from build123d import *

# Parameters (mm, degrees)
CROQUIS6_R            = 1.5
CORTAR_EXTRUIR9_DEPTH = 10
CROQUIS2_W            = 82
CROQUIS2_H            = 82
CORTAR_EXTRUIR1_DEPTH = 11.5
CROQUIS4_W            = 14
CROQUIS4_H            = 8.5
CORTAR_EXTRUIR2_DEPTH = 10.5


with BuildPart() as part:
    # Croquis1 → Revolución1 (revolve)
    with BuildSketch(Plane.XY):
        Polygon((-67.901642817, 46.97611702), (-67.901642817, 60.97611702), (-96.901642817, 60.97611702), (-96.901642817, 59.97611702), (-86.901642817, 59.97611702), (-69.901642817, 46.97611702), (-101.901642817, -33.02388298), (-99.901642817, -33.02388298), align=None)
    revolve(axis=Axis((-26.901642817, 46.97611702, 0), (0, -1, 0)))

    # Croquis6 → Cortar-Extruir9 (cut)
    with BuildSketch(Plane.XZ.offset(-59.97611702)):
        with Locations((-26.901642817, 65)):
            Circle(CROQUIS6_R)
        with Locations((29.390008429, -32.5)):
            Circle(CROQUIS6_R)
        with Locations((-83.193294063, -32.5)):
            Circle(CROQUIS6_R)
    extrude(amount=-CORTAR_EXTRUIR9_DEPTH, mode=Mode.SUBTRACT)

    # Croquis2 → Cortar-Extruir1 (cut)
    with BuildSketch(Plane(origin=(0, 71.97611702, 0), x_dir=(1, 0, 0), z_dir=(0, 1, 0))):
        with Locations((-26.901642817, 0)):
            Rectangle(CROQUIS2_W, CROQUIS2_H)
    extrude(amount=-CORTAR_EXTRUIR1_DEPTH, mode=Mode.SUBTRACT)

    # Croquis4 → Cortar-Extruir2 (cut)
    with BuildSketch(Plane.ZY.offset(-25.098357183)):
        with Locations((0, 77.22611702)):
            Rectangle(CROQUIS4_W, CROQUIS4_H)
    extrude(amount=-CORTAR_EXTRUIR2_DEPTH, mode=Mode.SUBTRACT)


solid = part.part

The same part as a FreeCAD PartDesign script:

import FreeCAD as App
import Part
import Sketcher
Q = App.Units.Quantity

doc = App.newDocument("Part")
body = doc.addObject("PartDesign::Body", "Body")

# Sketch on XY plane
sketch1 = body.newObject("Sketcher::SketchObject", "Sketch")
sketch1.AttachmentSupport = (doc.getObject("XY_Plane"), [""])
sketch1.MapMode = "FlatFace"
sketch1.addGeometry([
    Part.LineSegment(App.Vector(-67.9, 47, 0), App.Vector(-67.9, 61, 0)),  # 0
    Part.LineSegment(App.Vector(-67.9, 61, 0), App.Vector(-96.9, 61, 0)),  # 1
    Part.LineSegment(App.Vector(-96.9, 61, 0), App.Vector(-96.9, 60, 0)),  # 2
    Part.LineSegment(App.Vector(-96.9, 60, 0), App.Vector(-86.9, 60, 0)),  # 3
    Part.LineSegment(App.Vector(-86.9, 60, 0), App.Vector(-69.9, 47, 0)),  # 4
    Part.LineSegment(App.Vector(-69.9, 47, 0), App.Vector(-101.9, -33, 0)),  # 5
    Part.LineSegment(App.Vector(-101.9, -33, 0), App.Vector(-99.9, -33, 0)),  # 6
    Part.LineSegment(App.Vector(-99.9, -33, 0), App.Vector(-67.9, 47, 0)),  # 7
], False)
sketch1.addGeometry(Part.LineSegment(App.Vector(-26.9, 61, 0), App.Vector(-26.9, -33, 0)), True)  # axis
sketch1.addConstraint([
    Sketcher.Constraint("Coincident", 0, 2, 1, 1),
    Sketcher.Constraint("Coincident", 1, 2, 2, 1),
    Sketcher.Constraint("Coincident", 2, 2, 3, 1),
    Sketcher.Constraint("Coincident", 3, 2, 4, 1),
    Sketcher.Constraint("Coincident", 4, 2, 5, 1),
    Sketcher.Constraint("Coincident", 5, 2, 6, 1),
    Sketcher.Constraint("Coincident", 6, 2, 7, 1),
    Sketcher.Constraint("Coincident", 7, 2, 0, 1),
    Sketcher.Constraint("Vertical", 0),
    Sketcher.Constraint("Horizontal", 1),
    Sketcher.Constraint("Vertical", 2),
    Sketcher.Constraint("Horizontal", 3),
    Sketcher.Constraint("Horizontal", 6),
    Sketcher.Constraint("Vertical", 8),
    Sketcher.Constraint("Parallel", 5, 7),
    Sketcher.Constraint("Horizontal", 4, 2, 7, 2),
    Sketcher.Constraint("Horizontal", 1, 2, 8, 1),
    Sketcher.Constraint("Horizontal", 6, 2, 8, 2),
    Sketcher.Constraint("DistanceX", 1, 2, 1, 1, Q("29 mm")),
    Sketcher.Constraint("DistanceX", 3, 1, 3, 2, Q("10 mm")),
    Sketcher.Constraint("DistanceX", 6, 1, 6, 2, Q("2 mm")),
    Sketcher.Constraint("DistanceY", 0, 1, 0, 2, Q("14 mm")),
    Sketcher.Constraint("DistanceY", 2, 2, 2, 1, Q("1 mm")),
    Sketcher.Constraint("DistanceY", 8, 2, 8, 1, Q("94 mm")),
    Sketcher.Constraint("DistanceX", 5, 2, 4, 2, Q("32 mm")),
    Sketcher.Constraint("DistanceX", 0, 2, 8, 1, Q("41 mm")),
    Sketcher.Constraint("DistanceX", 0, 2, -1, 1, Q("67.901643 mm")),
    Sketcher.Constraint("DistanceY", -1, 1, 0, 2, Q("60.976117 mm")),
])
revolution = body.newObject("PartDesign::Revolution", "Revolution")
revolution.Profile = sketch1
revolution.ReferenceAxis = (sketch1, ["Axis0"])
revolution.Angle = 360

# Sketch on XZ plane
sketch2 = body.newObject("Sketcher::SketchObject", "Sketch001")
sketch2.AttachmentSupport = (doc.getObject("XZ_Plane"), [""])
sketch2.MapMode = "FlatFace"
sketch2.AttachmentOffset = App.Placement(App.Vector(0, 0, -59.976117), App.Rotation())
sketch2.addGeometry([
    Part.Circle(App.Vector(-26.9, 65, 0), App.Vector(0, 0, 1), 1.5),
    Part.Circle(App.Vector(29.4, -32.5, 0), App.Vector(0, 0, 1), 1.5),
    Part.Circle(App.Vector(-83.2, -32.5, 0), App.Vector(0, 0, 1), 1.5),
], False)
sketch2.addConstraint([
    Sketcher.Constraint("Equal", 0, 1),
    Sketcher.Constraint("Equal", 1, 2),
    Sketcher.Constraint("Horizontal", 1, 3, 2, 3),
    Sketcher.Constraint("Diameter", 0, Q("3 mm")),
    Sketcher.Constraint("DistanceY", -1, 1, 0, 3, Q("65 mm")),
    Sketcher.Constraint("DistanceY", 1, 3, -1, 1, Q("32.5 mm")),
    Sketcher.Constraint("DistanceX", -1, 1, 1, 3, Q("29.390008 mm")),
    Sketcher.Constraint("DistanceX", 0, 3, 1, 3, Q("56.291651 mm")),
    Sketcher.Constraint("DistanceX", 2, 3, 0, 3, Q("56.291651 mm")),
])
pocket1 = body.newObject("PartDesign::Pocket", "Pocket")
pocket1.Profile = sketch2
pocket1.Length = 10

# Sketch on XZ plane
sketch3 = body.newObject("Sketcher::SketchObject", "Sketch002")
sketch3.AttachmentSupport = (doc.getObject("XZ_Plane"), [""])
sketch3.MapMode = "FlatFace"
sketch3.AttachmentOffset = App.Placement(App.Vector(0, 0, -71.976117), App.Rotation())
sketch3.addGeometry([
    Part.LineSegment(App.Vector(-68, -41, 0), App.Vector(-68, 41, 0)),
    Part.LineSegment(App.Vector(-68, 41, 0), App.Vector(14, 41, 0)),
    Part.LineSegment(App.Vector(14, 41, 0), App.Vector(14, -41, 0)),
    Part.LineSegment(App.Vector(14, -41, 0), App.Vector(-68, -41, 0)),
], False)
sketch3.addConstraint([
    Sketcher.Constraint("Coincident", 0, 2, 1, 1),
    Sketcher.Constraint("Coincident", 1, 2, 2, 1),
    Sketcher.Constraint("Coincident", 2, 2, 3, 1),
    Sketcher.Constraint("Coincident", 3, 2, 0, 1),
    Sketcher.Constraint("Vertical", 0),
    Sketcher.Constraint("Horizontal", 1),
    Sketcher.Constraint("Vertical", 2),
    Sketcher.Constraint("Horizontal", 3),
    Sketcher.Constraint("Equal", 3, 0),
    Sketcher.Constraint("DistanceX", 1, 1, 1, 2, Q("82 mm")),
    Sketcher.Constraint("DistanceY", -1, 1, 0, 2, Q("41 mm")),
    Sketcher.Constraint("DistanceX", 0, 2, -1, 1, Q("67.901643 mm")),
])
pocket2 = body.newObject("PartDesign::Pocket", "Pocket001")
pocket2.Profile = sketch3
pocket2.Length = 11.5
pocket2.Reversed = True

# Sketch on YZ plane
sketch4 = body.newObject("Sketcher::SketchObject", "Sketch003")
sketch4.AttachmentSupport = (doc.getObject("YZ_Plane"), [""])
sketch4.MapMode = "FlatFace"
sketch4.AttachmentOffset = App.Placement(App.Vector(0, 0, 25.098357), App.Rotation())
sketch4.addGeometry([
    Part.LineSegment(App.Vector(81, -7, 0), App.Vector(73, -7, 0)),
    Part.LineSegment(App.Vector(73, -7, 0), App.Vector(73, 7, 0)),
    Part.LineSegment(App.Vector(73, 7, 0), App.Vector(81, 7, 0)),
    Part.LineSegment(App.Vector(81, 7, 0), App.Vector(81, -7, 0)),
], False)
sketch4.addConstraint([
    Sketcher.Constraint("Coincident", 0, 2, 1, 1),
    Sketcher.Constraint("Coincident", 1, 2, 2, 1),
    Sketcher.Constraint("Coincident", 2, 2, 3, 1),
    Sketcher.Constraint("Coincident", 3, 2, 0, 1),
    Sketcher.Constraint("Horizontal", 0),
    Sketcher.Constraint("Vertical", 1),
    Sketcher.Constraint("Horizontal", 2),
    Sketcher.Constraint("Vertical", 3),
    Sketcher.Constraint("DistanceY", 1, 1, 1, 2, Q("14 mm")),
    Sketcher.Constraint("DistanceX", 0, 2, 0, 1, Q("8.5 mm")),
    Sketcher.Constraint("DistanceY", 0, 2, -1, 1, Q("7 mm")),
    Sketcher.Constraint("DistanceX", -1, 1, 0, 2, Q("72.976117 mm")),
])
pocket3 = body.newObject("PartDesign::Pocket", "Pocket002")
pocket3.Profile = sketch4
pocket3.Length = 10.5
pocket3.Reversed = True

doc.recompute()
